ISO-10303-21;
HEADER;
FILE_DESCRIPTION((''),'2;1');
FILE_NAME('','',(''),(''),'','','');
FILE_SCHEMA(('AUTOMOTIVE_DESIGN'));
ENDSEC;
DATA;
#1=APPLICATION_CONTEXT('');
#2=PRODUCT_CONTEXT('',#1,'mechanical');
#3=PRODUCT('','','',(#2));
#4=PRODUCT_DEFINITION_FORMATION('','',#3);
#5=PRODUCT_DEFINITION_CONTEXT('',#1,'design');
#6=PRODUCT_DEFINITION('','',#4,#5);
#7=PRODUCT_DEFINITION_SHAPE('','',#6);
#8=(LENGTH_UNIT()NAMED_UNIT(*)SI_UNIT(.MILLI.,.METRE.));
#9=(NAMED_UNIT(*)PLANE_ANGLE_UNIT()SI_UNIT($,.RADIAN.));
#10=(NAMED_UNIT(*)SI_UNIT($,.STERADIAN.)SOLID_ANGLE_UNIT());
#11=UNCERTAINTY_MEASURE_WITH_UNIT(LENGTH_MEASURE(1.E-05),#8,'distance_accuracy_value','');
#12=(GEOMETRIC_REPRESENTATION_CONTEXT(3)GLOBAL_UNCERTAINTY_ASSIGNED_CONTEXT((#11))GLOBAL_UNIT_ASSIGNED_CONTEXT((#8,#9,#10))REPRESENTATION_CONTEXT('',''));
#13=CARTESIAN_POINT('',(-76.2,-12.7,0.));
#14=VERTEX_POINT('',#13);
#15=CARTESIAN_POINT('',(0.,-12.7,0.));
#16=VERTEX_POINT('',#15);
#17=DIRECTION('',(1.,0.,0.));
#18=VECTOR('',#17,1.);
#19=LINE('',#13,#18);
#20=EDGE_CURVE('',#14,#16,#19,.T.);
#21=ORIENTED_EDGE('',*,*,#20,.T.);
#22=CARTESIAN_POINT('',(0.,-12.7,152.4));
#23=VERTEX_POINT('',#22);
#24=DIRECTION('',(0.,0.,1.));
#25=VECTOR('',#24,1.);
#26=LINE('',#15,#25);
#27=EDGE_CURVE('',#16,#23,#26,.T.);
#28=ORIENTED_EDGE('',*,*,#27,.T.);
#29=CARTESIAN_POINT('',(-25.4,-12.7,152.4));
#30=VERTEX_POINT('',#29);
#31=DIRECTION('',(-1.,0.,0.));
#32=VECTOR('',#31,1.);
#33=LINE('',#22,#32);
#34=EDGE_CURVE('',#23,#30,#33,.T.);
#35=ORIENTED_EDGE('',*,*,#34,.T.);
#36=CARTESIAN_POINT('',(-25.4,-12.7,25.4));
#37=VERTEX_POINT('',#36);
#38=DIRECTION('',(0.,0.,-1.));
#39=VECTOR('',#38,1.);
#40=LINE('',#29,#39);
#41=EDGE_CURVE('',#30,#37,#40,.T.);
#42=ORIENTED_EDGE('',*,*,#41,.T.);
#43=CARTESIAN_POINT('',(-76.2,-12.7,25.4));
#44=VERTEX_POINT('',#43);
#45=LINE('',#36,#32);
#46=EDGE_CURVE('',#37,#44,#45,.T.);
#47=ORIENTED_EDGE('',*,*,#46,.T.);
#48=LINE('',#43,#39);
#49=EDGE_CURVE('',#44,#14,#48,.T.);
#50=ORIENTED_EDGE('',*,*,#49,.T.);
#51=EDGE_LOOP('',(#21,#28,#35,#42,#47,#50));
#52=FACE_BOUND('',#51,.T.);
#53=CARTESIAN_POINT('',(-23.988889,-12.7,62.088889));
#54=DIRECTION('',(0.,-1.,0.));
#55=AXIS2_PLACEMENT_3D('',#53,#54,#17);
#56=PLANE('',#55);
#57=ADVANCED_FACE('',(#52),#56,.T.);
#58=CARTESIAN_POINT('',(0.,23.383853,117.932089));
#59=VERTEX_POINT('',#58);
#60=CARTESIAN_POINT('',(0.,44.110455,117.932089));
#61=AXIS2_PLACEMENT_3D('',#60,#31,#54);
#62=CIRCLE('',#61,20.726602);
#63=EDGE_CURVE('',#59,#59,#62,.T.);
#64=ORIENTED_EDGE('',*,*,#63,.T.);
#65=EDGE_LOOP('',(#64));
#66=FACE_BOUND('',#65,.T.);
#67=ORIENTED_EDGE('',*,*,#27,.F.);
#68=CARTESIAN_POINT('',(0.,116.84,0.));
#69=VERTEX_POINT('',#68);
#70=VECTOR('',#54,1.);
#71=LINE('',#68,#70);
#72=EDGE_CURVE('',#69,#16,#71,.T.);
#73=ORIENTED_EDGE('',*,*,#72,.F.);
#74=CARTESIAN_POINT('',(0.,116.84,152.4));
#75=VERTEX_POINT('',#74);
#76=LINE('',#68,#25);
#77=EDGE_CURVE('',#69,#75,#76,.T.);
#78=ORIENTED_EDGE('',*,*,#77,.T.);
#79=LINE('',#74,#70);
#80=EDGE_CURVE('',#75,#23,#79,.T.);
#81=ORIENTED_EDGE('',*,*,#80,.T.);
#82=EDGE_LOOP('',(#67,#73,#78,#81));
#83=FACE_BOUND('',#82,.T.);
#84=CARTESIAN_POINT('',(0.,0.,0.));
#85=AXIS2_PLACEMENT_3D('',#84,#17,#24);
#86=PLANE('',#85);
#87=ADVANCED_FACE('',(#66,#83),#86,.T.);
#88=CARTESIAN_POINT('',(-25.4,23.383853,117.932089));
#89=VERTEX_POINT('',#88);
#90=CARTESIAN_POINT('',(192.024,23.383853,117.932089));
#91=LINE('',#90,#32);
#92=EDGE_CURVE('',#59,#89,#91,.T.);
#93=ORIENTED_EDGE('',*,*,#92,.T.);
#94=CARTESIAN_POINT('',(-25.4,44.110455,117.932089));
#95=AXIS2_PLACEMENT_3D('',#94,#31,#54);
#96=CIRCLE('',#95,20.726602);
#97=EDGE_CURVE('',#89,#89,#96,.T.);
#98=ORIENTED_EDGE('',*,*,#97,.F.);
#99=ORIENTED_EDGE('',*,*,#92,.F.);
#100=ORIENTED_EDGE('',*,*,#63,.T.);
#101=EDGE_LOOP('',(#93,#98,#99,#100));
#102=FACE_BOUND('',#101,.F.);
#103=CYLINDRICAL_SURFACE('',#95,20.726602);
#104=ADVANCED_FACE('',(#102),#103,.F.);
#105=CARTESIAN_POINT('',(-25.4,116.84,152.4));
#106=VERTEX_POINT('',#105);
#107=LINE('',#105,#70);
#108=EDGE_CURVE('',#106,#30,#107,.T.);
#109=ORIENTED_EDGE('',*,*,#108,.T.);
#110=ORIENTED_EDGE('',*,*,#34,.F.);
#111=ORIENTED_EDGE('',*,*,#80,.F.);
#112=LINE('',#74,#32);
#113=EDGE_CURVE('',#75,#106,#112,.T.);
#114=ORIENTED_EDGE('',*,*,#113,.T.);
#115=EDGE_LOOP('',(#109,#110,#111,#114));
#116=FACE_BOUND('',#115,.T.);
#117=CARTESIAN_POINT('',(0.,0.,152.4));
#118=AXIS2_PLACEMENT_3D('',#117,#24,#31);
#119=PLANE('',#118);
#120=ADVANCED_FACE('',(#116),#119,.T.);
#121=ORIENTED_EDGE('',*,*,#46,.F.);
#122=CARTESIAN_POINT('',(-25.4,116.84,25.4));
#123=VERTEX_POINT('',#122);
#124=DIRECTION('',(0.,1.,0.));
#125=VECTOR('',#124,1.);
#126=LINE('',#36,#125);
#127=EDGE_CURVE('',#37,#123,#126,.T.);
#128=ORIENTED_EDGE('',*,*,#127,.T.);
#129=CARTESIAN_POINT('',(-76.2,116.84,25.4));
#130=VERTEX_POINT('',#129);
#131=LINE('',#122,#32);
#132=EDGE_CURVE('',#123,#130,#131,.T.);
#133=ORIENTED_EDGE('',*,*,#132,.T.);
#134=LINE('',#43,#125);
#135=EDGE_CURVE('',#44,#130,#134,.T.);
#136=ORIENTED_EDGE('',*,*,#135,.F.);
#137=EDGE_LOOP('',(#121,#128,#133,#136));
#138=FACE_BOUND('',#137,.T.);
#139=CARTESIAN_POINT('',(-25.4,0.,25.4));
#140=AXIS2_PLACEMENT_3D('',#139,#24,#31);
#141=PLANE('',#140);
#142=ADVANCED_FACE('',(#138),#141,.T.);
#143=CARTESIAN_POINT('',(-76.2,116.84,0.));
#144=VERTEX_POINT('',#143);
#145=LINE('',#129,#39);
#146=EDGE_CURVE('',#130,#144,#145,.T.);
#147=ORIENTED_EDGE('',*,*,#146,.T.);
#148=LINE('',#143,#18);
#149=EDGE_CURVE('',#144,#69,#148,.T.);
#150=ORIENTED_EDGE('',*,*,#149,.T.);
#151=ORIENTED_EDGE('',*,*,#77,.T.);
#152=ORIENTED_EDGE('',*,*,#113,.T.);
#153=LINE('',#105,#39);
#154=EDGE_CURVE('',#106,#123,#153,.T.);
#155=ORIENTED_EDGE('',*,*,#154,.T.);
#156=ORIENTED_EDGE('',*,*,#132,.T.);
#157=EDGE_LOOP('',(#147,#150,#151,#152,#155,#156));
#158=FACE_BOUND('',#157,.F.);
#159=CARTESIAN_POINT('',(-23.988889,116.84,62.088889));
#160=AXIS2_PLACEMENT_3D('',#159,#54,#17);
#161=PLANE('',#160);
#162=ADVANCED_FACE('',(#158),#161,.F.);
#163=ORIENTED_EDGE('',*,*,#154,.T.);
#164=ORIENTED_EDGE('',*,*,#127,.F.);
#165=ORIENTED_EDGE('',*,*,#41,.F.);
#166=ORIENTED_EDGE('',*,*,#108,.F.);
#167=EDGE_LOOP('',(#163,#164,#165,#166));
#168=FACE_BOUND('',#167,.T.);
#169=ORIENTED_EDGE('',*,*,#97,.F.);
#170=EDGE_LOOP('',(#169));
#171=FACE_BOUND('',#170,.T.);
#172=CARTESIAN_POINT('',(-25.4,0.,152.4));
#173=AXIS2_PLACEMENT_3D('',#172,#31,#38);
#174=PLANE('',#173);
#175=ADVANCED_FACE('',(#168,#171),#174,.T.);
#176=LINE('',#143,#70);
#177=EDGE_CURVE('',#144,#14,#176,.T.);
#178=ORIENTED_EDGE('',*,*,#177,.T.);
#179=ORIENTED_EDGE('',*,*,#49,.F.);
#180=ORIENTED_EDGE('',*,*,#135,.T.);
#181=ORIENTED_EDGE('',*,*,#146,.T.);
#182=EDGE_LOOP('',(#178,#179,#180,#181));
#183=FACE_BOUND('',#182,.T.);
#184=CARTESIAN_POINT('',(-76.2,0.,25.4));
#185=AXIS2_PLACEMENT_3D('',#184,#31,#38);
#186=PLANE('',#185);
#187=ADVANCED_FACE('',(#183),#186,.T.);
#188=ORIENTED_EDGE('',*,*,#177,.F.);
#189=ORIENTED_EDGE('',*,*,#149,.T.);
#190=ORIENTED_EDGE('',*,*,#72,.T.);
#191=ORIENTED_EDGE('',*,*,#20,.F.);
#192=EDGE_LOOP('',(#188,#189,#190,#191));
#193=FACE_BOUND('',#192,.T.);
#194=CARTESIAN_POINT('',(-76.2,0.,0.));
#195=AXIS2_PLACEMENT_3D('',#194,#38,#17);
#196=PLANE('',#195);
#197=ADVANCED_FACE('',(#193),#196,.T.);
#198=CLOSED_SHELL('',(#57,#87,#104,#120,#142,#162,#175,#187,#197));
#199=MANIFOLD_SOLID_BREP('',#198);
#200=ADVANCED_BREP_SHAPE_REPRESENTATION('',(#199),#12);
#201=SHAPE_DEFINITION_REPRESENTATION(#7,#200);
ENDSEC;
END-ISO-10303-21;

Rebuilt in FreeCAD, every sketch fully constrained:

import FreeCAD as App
import Part
import Sketcher
Q = App.Units.Quantity

doc = App.newDocument("Part")
body = doc.addObject("PartDesign::Body", "Body")

sketch1 = body.newObject("Sketcher::SketchObject", "Sketch")
sketch1.AttachmentSupport = (doc.getObject("XZ_Plane"), [""])
sketch1.MapMode = "FlatFace"
sketch1.addGeometry([
    Part.LineSegment(App.Vector(-76, 25, 0), App.Vector(-76, 0, 0)),
    Part.LineSegment(App.Vector(-76, 0, 0), App.Vector(0, 0, 0)),
    Part.LineSegment(App.Vector(0, 0, 0), App.Vector(0, 152, 0)),
    Part.LineSegment(App.Vector(0, 152, 0), App.Vector(-25, 152, 0)),
    Part.LineSegment(App.Vector(-25, 152, 0), App.Vector(-25, 25, 0)),
    Part.LineSegment(App.Vector(-25, 25, 0), App.Vector(-76, 25, 0)),
], False)
sketch1.addConstraint([
    Sketcher.Constraint("Coincident", 0, 2, 1, 1),
    Sketcher.Constraint("Coincident", 1, 2, 2, 1),
    Sketcher.Constraint("Coincident", 2, 2, 3, 1),
    Sketcher.Constraint("Coincident", 3, 2, 4, 1),
    Sketcher.Constraint("Coincident", 4, 2, 5, 1),
    Sketcher.Constraint("Coincident", 5, 2, 0, 1),
    Sketcher.Constraint("Vertical", 0),
    Sketcher.Constraint("Horizontal", 1),
    Sketcher.Constraint("Vertical", 2),
    Sketcher.Constraint("Horizontal", 3),
    Sketcher.Constraint("Vertical", 4),
    Sketcher.Constraint("Horizontal", 5),
    Sketcher.Constraint("Coincident", 1, 2, -1, 1),
    Sketcher.Constraint("Equal", 3, 0),
    Sketcher.Constraint("DistanceX", 1, 1, 1, 2, Q("3 in")),
    Sketcher.Constraint("DistanceX", 3, 2, 3, 1, Q("1 in")),
    Sketcher.Constraint("DistanceY", 2, 1, 2, 2, Q("6 in")),
])
pad1 = body.newObject("PartDesign::Pad", "Pad")
pad1.Profile = sketch1
pad1.Length = Q("1 in")
pad1.Midplane = True

sketch2 = body.newObject("Sketcher::SketchObject", "Sketch001")
sketch2.AttachmentSupport = (doc.getObject("XZ_Plane"), [""])
sketch2.MapMode = "FlatFace"
sketch2.AttachmentOffset = App.Placement(App.Vector(0, 0, 0.5 * 25.4), App.Rotation())
sketch2.addGeometry([
    Part.LineSegment(App.Vector(-76, 25, 0), App.Vector(-76, 0, 0)),
    Part.LineSegment(App.Vector(-76, 0, 0), App.Vector(0, 0, 0)),
    Part.LineSegment(App.Vector(0, 0, 0), App.Vector(0, 152, 0)),
    Part.LineSegment(App.Vector(0, 152, 0), App.Vector(-25, 152, 0)),
    Part.LineSegment(App.Vector(-25, 152, 0), App.Vector(-25, 25, 0)),
    Part.LineSegment(App.Vector(-25, 25, 0), App.Vector(-76, 25, 0)),
], False)
sketch2.addConstraint([
    Sketcher.Constraint("Coincident", 0, 2, 1, 1),
    Sketcher.Constraint("Coincident", 1, 2, 2, 1),
    Sketcher.Constraint("Coincident", 2, 2, 3, 1),
    Sketcher.Constraint("Coincident", 3, 2, 4, 1),
    Sketcher.Constraint("Coincident", 4, 2, 5, 1),
    Sketcher.Constraint("Coincident", 5, 2, 0, 1),
    Sketcher.Constraint("Vertical", 0),
    Sketcher.Constraint("Horizontal", 1),
    Sketcher.Constraint("Vertical", 2),
    Sketcher.Constraint("Horizontal", 3),
    Sketcher.Constraint("Vertical", 4),
    Sketcher.Constraint("Horizontal", 5),
    Sketcher.Constraint("Coincident", 1, 2, -1, 1),
    Sketcher.Constraint("Equal", 3, 0),
    Sketcher.Constraint("DistanceX", 1, 1, 1, 2, Q("3 in")),
    Sketcher.Constraint("DistanceX", 3, 2, 3, 1, Q("1 in")),
    Sketcher.Constraint("DistanceY", 2, 1, 2, 2, Q("6 in")),
])
pad2 = body.newObject("PartDesign::Pad", "Pad001")
pad2.Profile = sketch2
pad2.Length = Q("5.1 in")
pad2.Reversed = True

sketch3 = body.newObject("Sketcher::SketchObject", "Sketch002")
sketch3.AttachmentSupport = (doc.getObject("YZ_Plane"), [""])
sketch3.MapMode = "FlatFace"
sketch3.AttachmentOffset = App.Placement(App.Vector(0, 0, -1 * 25.4), App.Rotation())
sketch3.addGeometry(Part.Circle(App.Vector(44, 118, 0), App.Vector(0, 0, 1), 21), False)
sketch3.addConstraint([
    Sketcher.Constraint("Diameter", 0, 41.453204),
    Sketcher.Constraint("DistanceY", -1, 1, 0, 3, 117.932089),
    Sketcher.Constraint("DistanceX", -1, 1, 0, 3, 44.110455),
])
pocket1 = body.newObject("PartDesign::Pocket", "Pocket")
pocket1.Profile = sketch3
pocket1.Length = Q("17.12 in")
pocket1.Midplane = True

doc.recompute()
